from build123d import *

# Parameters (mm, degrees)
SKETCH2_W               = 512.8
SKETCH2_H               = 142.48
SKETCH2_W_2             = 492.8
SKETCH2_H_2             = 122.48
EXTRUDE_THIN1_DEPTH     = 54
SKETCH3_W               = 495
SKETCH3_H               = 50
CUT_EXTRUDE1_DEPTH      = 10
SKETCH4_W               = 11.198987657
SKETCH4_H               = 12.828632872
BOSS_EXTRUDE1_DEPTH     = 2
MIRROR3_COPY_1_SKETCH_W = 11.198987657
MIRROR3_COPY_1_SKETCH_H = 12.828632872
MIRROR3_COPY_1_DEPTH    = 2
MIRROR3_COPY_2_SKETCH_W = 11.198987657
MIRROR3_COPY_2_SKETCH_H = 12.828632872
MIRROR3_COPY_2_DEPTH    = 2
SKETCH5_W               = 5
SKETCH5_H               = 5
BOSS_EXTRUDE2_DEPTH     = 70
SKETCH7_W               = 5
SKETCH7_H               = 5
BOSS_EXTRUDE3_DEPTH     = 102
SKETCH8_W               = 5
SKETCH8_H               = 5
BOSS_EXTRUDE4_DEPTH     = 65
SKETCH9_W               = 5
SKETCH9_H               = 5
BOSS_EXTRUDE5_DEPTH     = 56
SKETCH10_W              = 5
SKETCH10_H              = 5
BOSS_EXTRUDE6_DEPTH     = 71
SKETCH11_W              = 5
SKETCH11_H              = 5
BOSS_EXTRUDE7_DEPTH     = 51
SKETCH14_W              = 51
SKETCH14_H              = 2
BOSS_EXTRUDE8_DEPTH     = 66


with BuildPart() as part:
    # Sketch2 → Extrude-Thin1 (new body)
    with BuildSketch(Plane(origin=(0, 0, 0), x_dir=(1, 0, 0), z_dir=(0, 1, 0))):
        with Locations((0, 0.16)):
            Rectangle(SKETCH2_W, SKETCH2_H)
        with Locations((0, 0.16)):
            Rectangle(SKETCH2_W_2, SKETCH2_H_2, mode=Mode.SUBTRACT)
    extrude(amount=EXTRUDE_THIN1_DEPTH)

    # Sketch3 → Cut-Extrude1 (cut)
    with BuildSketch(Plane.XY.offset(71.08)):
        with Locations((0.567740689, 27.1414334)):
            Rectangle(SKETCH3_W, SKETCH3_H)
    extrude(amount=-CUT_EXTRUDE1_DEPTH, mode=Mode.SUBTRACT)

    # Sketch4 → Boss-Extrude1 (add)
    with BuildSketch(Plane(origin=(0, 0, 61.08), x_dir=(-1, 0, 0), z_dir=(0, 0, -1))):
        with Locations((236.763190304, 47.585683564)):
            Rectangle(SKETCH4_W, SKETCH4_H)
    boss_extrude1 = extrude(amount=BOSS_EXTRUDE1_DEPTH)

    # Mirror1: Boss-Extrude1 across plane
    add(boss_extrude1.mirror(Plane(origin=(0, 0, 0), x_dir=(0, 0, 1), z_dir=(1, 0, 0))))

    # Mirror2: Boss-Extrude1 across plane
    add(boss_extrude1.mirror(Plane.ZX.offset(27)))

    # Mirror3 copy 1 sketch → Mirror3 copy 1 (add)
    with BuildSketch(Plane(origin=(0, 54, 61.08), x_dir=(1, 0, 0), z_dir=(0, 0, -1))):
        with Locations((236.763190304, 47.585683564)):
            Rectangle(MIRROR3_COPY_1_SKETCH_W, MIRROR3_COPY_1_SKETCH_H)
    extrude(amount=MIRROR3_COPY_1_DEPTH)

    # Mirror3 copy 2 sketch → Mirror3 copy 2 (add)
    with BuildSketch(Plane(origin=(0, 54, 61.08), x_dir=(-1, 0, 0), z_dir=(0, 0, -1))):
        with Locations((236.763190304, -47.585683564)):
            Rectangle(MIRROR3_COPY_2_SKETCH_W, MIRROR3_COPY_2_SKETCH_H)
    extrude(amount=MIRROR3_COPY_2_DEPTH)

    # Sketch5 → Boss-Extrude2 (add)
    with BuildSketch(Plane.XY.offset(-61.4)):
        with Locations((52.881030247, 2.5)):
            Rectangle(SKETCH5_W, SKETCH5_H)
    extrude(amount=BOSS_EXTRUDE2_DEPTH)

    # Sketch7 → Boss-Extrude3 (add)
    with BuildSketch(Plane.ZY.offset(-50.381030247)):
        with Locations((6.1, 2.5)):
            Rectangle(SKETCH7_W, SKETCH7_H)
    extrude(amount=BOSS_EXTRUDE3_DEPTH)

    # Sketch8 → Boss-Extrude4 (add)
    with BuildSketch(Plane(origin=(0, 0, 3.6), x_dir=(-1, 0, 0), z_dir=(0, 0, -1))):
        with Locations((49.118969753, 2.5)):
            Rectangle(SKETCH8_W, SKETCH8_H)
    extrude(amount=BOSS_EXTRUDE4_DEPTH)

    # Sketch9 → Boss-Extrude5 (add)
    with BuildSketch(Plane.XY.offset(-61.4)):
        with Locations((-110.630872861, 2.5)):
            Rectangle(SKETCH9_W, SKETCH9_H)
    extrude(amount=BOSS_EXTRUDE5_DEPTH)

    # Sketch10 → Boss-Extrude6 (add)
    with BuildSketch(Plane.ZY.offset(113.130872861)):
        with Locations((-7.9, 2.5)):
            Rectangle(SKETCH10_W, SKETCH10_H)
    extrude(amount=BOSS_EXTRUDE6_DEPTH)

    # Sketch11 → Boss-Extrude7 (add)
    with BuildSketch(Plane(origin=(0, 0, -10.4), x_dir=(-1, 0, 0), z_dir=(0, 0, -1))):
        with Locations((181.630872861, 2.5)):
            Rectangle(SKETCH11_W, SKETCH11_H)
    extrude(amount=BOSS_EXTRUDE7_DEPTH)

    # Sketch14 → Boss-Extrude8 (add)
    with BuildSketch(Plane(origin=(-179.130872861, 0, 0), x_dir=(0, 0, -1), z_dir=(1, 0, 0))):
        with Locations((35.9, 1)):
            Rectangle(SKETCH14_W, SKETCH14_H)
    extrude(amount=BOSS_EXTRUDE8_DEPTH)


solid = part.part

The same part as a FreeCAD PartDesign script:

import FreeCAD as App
import Part
import Sketcher


def add_polygon(sketch, points):
    """Adds a closed chain of lines whose ends are joined by coincident constraints."""
    first, n = sketch.GeometryCount, len(points)
    for a, b in zip(points, points[1:] + points[:1]):
        sketch.addGeometry(Part.LineSegment(App.Vector(*a, 0), App.Vector(*b, 0)), False)
    for i in range(n):
        sketch.addConstraint(Sketcher.Constraint("Coincident", first + i, 2, first + (i + 1) % n, 1))

doc = App.newDocument("Part")
body = doc.addObject("PartDesign::Body", "Body")

# Sketch on XZ plane
sketch1 = doc.addObject("Sketcher::SketchObject", "Sketch")
body.addObject(sketch1)
sketch1.AttachmentSupport = (doc.XZ_Plane, [""])
sketch1.MapMode = "FlatFace"
add_polygon(sketch1, [(-256.4, -71.4), (-256.4, 71.08), (256.4, 71.08), (256.4, -71.4)])  # lines 0-3
add_polygon(sketch1, [(246.4, 61.08), (-246.4, 61.08), (-246.4, -61.4), (246.4, -61.4)])  # lines 4-7
sketch1.addConstraint([
    Sketcher.Constraint("Vertical", 0),
    Sketcher.Constraint("Horizontal", 1),
    Sketcher.Constraint("Vertical", 2),
    Sketcher.Constraint("Horizontal", 3),
    Sketcher.Constraint("Horizontal", 4),
    Sketcher.Constraint("Vertical", 5),
    Sketcher.Constraint("Horizontal", 6),
    Sketcher.Constraint("Vertical", 7),
    Sketcher.Constraint("DistanceX", 1, 1, 1, 2, 512.8),
    Sketcher.Constraint("DistanceX", 4, 2, 4, 1, 492.8),
    Sketcher.Constraint("DistanceX", 0, 2, 4, 2, 10.0),
    Sketcher.Constraint("DistanceY", 4, 2, 0, 2, 10.0),
    Sketcher.Constraint("DistanceY", 3, 2, 5, 2, 10.0),
    Sketcher.Constraint("DistanceY", 0, 1, 0, 2, 142.48),
    Sketcher.Constraint("DistanceX", 0, 2, -1, 1, 256.4),
    Sketcher.Constraint("DistanceY", 2, 2, -1, 1, 71.4),
])
pad1 = doc.addObject("PartDesign::Pad", "Pad")
body.addObject(pad1)
pad1.Profile = sketch1
pad1.Length = 54
pad1.Reversed = True

# Sketch on XY plane
sketch2 = doc.addObject("Sketcher::SketchObject", "Sketch001")
body.addObject(sketch2)
sketch2.AttachmentSupport = (doc.XY_Plane, [""])
sketch2.MapMode = "FlatFace"
sketch2.AttachmentOffset = App.Placement(App.Vector(0, 0, 71.08), App.Rotation())
add_polygon(sketch2, [(-246.932259, 52.141433), (-246.932259, 2.141433), (248.067741, 2.141433), (248.067741, 52.141433)])  # lines 0-3
sketch2.addConstraint([
    Sketcher.Constraint("Vertical", 0),
    Sketcher.Constraint("Horizontal", 1),
    Sketcher.Constraint("Vertical", 2),
    Sketcher.Constraint("Horizontal", 3),
    Sketcher.Constraint("DistanceX", 1, 1, 1, 2, 495.0),
    Sketcher.Constraint("DistanceY", 0, 2, 0, 1, 50.0),
    Sketcher.Constraint("DistanceX", 0, 2, -1, 1, 246.932259),
    Sketcher.Constraint("DistanceY", -1, 1, 0, 2, 2.141433),
])
pocket1 = doc.addObject("PartDesign::Pocket", "Pocket")
body.addObject(pocket1)
pocket1.Profile = sketch2
pocket1.Length = 10

# Sketch on XY plane
sketch3 = doc.addObject("Sketcher::SketchObject", "Sketch002")
body.addObject(sketch3)
sketch3.AttachmentSupport = (doc.XY_Plane, [""])
sketch3.MapMode = "FlatFace"
sketch3.AttachmentOffset = App.Placement(App.Vector(0, 0, 61.08), App.Rotation())
add_polygon(sketch3, [(-231.163696, 54), (-231.163696, 41.171367), (-242.362684, 41.171367), (-242.362684, 54)])  # lines 0-3
sketch3.addConstraint([
    Sketcher.Constraint("Vertical", 0),
    Sketcher.Constraint("Horizontal", 1),
    Sketcher.Constraint("Vertical", 2),
    Sketcher.Constraint("Horizontal", 3),
    Sketcher.Constraint("DistanceY", -1, 1, 2, 2, 54.0),
    Sketcher.Constraint("DistanceX", 1, 2, 1, 1, 11.198988),
    Sketcher.Constraint("DistanceY", 0, 2, 0, 1, 12.828633),
    Sketcher.Constraint("DistanceX", 0, 2, -1, 1, 231.163696),
])
pad2 = doc.addObject("PartDesign::Pad", "Pad001")
body.addObject(pad2)
pad2.Profile = sketch3
pad2.Length = 2
pad2.Reversed = True
doc.recompute()

mirrored = doc.addObject("PartDesign::Mirrored", "Mirrored")
body.addObject(mirrored)
mirrored.Originals = [pad2]
mirrored.MirrorPlane = (doc.YZ_Plane, [""])
body.Tip = mirrored
doc.recompute()

datumplane = doc.addObject("PartDesign::Plane", "DatumPlane")
body.addObject(datumplane)
datumplane.AttachmentSupport = (doc.XZ_Plane, [""])
datumplane.MapMode = "FlatFace"
datumplane.AttachmentOffset = App.Placement(App.Vector(0, 0, -27), App.Rotation())
mirrored2 = doc.addObject("PartDesign::Mirrored", "Mirrored001")
body.addObject(mirrored2)
mirrored2.Originals = [pad2]
mirrored2.MirrorPlane = (datumplane, [""])
body.Tip = mirrored2

# Sketch on XY plane
sketch4 = doc.addObject("Sketcher::SketchObject", "Sketch003")
body.addObject(sketch4)
sketch4.AttachmentSupport = (doc.XY_Plane, [""])
sketch4.MapMode = "FlatFace"
sketch4.AttachmentOffset = App.Placement(App.Vector(0, 0, 61.08), App.Rotation())
add_polygon(sketch4, [(231.163696, 0), (231.163696, 12.828633), (242.362684, 12.828633), (242.362684, 0)])  # lines 0-3
sketch4.addConstraint([
    Sketcher.Constraint("Vertical", 0),
    Sketcher.Constraint("Horizontal", 1),
    Sketcher.Constraint("Vertical", 2),
    Sketcher.Constraint("Horizontal", 3),
    Sketcher.Constraint("PointOnObject", 2, 2, -1),
    Sketcher.Constraint("DistanceX", 1, 1, 1, 2, 11.198988),
    Sketcher.Constraint("DistanceY", 0, 1, 0, 2, 12.828633),
    Sketcher.Constraint("DistanceX", -1, 1, 0, 2, 231.163696),
])
pad3 = doc.addObject("PartDesign::Pad", "Pad002")
body.addObject(pad3)
pad3.Profile = sketch4
pad3.Length = 2
pad3.Reversed = True

# Sketch on XY plane
sketch5 = doc.addObject("Sketcher::SketchObject", "Sketch004")
body.addObject(sketch5)
sketch5.AttachmentSupport = (doc.XY_Plane, [""])
sketch5.MapMode = "FlatFace"
sketch5.AttachmentOffset = App.Placement(App.Vector(0, 0, 61.08), App.Rotation())
add_polygon(sketch5, [(-231.163696, 12.828633), (-231.163696, 0), (-242.362684, 0), (-242.362684, 12.828633)])  # lines 0-3
sketch5.addConstraint([
    Sketcher.Constraint("Vertical", 0),
    Sketcher.Constraint("Horizontal", 1),
    Sketcher.Constraint("Vertical", 2),
    Sketcher.Constraint("Horizontal", 3),
    Sketcher.Constraint("PointOnObject", 0, 2, -1),
    Sketcher.Constraint("DistanceX", 1, 2, 1, 1, 11.198988),
    Sketcher.Constraint("DistanceY", 0, 2, 0, 1, 12.828633),
    Sketcher.Constraint("DistanceX", 0, 2, -1, 1, 231.163696),
])
pad4 = doc.addObject("PartDesign::Pad", "Pad003")
body.addObject(pad4)
pad4.Profile = sketch5
pad4.Length = 2
pad4.Reversed = True

# Sketch on XY plane
sketch6 = doc.addObject("Sketcher::SketchObject", "Sketch005")
body.addObject(sketch6)
sketch6.AttachmentSupport = (doc.XY_Plane, [""])
sketch6.MapMode = "FlatFace"
sketch6.AttachmentOffset = App.Placement(App.Vector(0, 0, -61.4), App.Rotation())
add_polygon(sketch6, [(50.38103, 5), (50.38103, 0), (55.38103, 0), (55.38103, 5)])  # lines 0-3
sketch6.addConstraint([
    Sketcher.Constraint("Vertical", 0),
    Sketcher.Constraint("Horizontal", 1),
    Sketcher.Constraint("Vertical", 2),
    Sketcher.Constraint("Horizontal", 3),
    Sketcher.Constraint("PointOnObject", 0, 2, -1),
    Sketcher.Constraint("Equal", 3, 0),
    Sketcher.Constraint("DistanceX", 1, 1, 1, 2, 5.0),
    Sketcher.Constraint("DistanceX", -1, 1, 0, 2, 50.38103),
])
pad5 = doc.addObject("PartDesign::Pad", "Pad004")
body.addObject(pad5)
pad5.Profile = sketch6
pad5.Length = 70

# Sketch on YZ plane
sketch7 = doc.addObject("Sketcher::SketchObject", "Sketch006")
body.addObject(sketch7)
sketch7.AttachmentSupport = (doc.YZ_Plane, [""])
sketch7.MapMode = "FlatFace"
sketch7.AttachmentOffset = App.Placement(App.Vector(0, 0, 50.38103), App.Rotation())
add_polygon(sketch7, [(5, 3.6), (0, 3.6), (0, 8.6), (5, 8.6)])  # lines 0-3
sketch7.addConstraint([
    Sketcher.Constraint("Horizontal", 0),
    Sketcher.Constraint("Vertical", 1),
    Sketcher.Constraint("Horizontal", 2),
    Sketcher.Constraint("Vertical", 3),
    Sketcher.Constraint("PointOnObject", 0, 2, -2),
    Sketcher.Constraint("Equal", 2, 1),
    Sketcher.Constraint("DistanceX", 0, 2, 0, 1, 5.0),
    Sketcher.Constraint("DistanceY", -1, 1, 0, 2, 3.6),
])
pad6 = doc.addObject("PartDesign::Pad", "Pad005")
body.addObject(pad6)
pad6.Profile = sketch7
pad6.Length = 102
pad6.Reversed = True

# Sketch on XY plane
sketch8 = doc.addObject("Sketcher::SketchObject", "Sketch007")
body.addObject(sketch8)
sketch8.AttachmentSupport = (doc.XY_Plane, [""])
sketch8.MapMode = "FlatFace"
sketch8.AttachmentOffset = App.Placement(App.Vector(0, 0, 3.6), App.Rotation())
add_polygon(sketch8, [(-46.61897, 5), (-46.61897, 0), (-51.61897, 0), (-51.61897, 5)])  # lines 0-3
sketch8.addConstraint([
    Sketcher.Constraint("Vertical", 0),
    Sketcher.Constraint("Horizontal", 1),
    Sketcher.Constraint("Vertical", 2),
    Sketcher.Constraint("Horizontal", 3),
    Sketcher.Constraint("PointOnObject", 0, 2, -1),
    Sketcher.Constraint("Equal", 3, 0),
    Sketcher.Constraint("DistanceX", 1, 2, 1, 1, 5.0),
    Sketcher.Constraint("DistanceX", 0, 2, -1, 1, 46.61897),
])
pad7 = doc.addObject("PartDesign::Pad", "Pad006")
body.addObject(pad7)
pad7.Profile = sketch8
pad7.Length = 65
pad7.Reversed = True

# Sketch on XY plane
sketch9 = doc.addObject("Sketcher::SketchObject", "Sketch008")
body.addObject(sketch9)
sketch9.AttachmentSupport = (doc.XY_Plane, [""])
sketch9.MapMode = "FlatFace"
sketch9.AttachmentOffset = App.Placement(App.Vector(0, 0, -61.4), App.Rotation())
add_polygon(sketch9, [(-113.130873, 5), (-113.130873, 0), (-108.130873, 0), (-108.130873, 5)])  # lines 0-3
sketch9.addConstraint([
    Sketcher.Constraint("Vertical", 0),
    Sketcher.Constraint("Horizontal", 1),
    Sketcher.Constraint("Vertical", 2),
    Sketcher.Constraint("Horizontal", 3),
    Sketcher.Constraint("PointOnObject", 0, 2, -1),
    Sketcher.Constraint("Equal", 3, 0),
    Sketcher.Constraint("DistanceX", 1, 1, 1, 2, 5.0),
    Sketcher.Constraint("DistanceX", 0, 2, -1, 1, 113.130873),
])
pad8 = doc.addObject("PartDesign::Pad", "Pad007")
body.addObject(pad8)
pad8.Profile = sketch9
pad8.Length = 56

# Sketch on YZ plane
sketch10 = doc.addObject("Sketcher::SketchObject", "Sketch009")
body.addObject(sketch10)
sketch10.AttachmentSupport = (doc.YZ_Plane, [""])
sketch10.MapMode = "FlatFace"
sketch10.AttachmentOffset = App.Placement(App.Vector(0, 0, -113.130873), App.Rotation())
add_polygon(sketch10, [(5, -10.4), (0, -10.4), (0, -5.4), (5, -5.4)])  # lines 0-3
sketch10.addConstraint([
    Sketcher.Constraint("Horizontal", 0),
    Sketcher.Constraint("Vertical", 1),
    Sketcher.Constraint("Horizontal", 2),
    Sketcher.Constraint("Vertical", 3),
    Sketcher.Constraint("PointOnObject", 0, 2, -2),
    Sketcher.Constraint("Equal", 2, 1),
    Sketcher.Constraint("DistanceX", 0, 2, 0, 1, 5.0),
    Sketcher.Constraint("DistanceY", 0, 2, -1, 1, 10.4),
])
pad9 = doc.addObject("PartDesign::Pad", "Pad008")
body.addObject(pad9)
pad9.Profile = sketch10
pad9.Length = 71
pad9.Reversed = True

# Sketch on XY plane
sketch11 = doc.addObject("Sketcher::SketchObject", "Sketch010")
body.addObject(sketch11)
sketch11.AttachmentSupport = (doc.XY_Plane, [""])
sketch11.MapMode = "FlatFace"
sketch11.AttachmentOffset = App.Placement(App.Vector(0, 0, -10.4), App.Rotation())
add_polygon(sketch11, [(-179.130873, 5), (-179.130873, 0), (-184.130873, 0), (-184.130873, 5)])  # lines 0-3
sketch11.addConstraint([
    Sketcher.Constraint("Vertical", 0),
    Sketcher.Constraint("Horizontal", 1),
    Sketcher.Constraint("Vertical", 2),
    Sketcher.Constraint("Horizontal", 3),
    Sketcher.Constraint("PointOnObject", 0, 2, -1),
    Sketcher.Constraint("Equal", 3, 0),
    Sketcher.Constraint("DistanceX", 1, 2, 1, 1, 5.0),
    Sketcher.Constraint("DistanceX", 0, 2, -1, 1, 179.130873),
])
pad10 = doc.addObject("PartDesign::Pad", "Pad009")
body.addObject(pad10)
pad10.Profile = sketch11
pad10.Length = 51
pad10.Reversed = True

# Sketch on YZ plane
sketch12 = doc.addObject("Sketcher::SketchObject", "Sketch011")
body.addObject(sketch12)
sketch12.AttachmentSupport = (doc.YZ_Plane, [""])
sketch12.MapMode = "FlatFace"
sketch12.AttachmentOffset = App.Placement(App.Vector(0, 0, -179.130873), App.Rotation())
add_polygon(sketch12, [(2, -10.4), (0, -10.4), (0, -61.4), (2, -61.4)])  # lines 0-3
sketch12.addConstraint([
    Sketcher.Constraint("Horizontal", 0),
    Sketcher.Constraint("Vertical", 1),
    Sketcher.Constraint("Horizontal", 2),
    Sketcher.Constraint("Vertical", 3),
    Sketcher.Constraint("PointOnObject", 0, 2, -2),
    Sketcher.Constraint("DistanceX", 0, 2, 0, 1, 2.0),
    Sketcher.Constraint("DistanceY", 1, 2, 1, 1, 51.0),
    Sketcher.Constraint("DistanceY", 0, 2, -1, 1, 10.4),
])
pad11 = doc.addObject("PartDesign::Pad", "Pad010")
body.addObject(pad11)
pad11.Profile = sketch12
pad11.Length = 66

doc.recompute()
